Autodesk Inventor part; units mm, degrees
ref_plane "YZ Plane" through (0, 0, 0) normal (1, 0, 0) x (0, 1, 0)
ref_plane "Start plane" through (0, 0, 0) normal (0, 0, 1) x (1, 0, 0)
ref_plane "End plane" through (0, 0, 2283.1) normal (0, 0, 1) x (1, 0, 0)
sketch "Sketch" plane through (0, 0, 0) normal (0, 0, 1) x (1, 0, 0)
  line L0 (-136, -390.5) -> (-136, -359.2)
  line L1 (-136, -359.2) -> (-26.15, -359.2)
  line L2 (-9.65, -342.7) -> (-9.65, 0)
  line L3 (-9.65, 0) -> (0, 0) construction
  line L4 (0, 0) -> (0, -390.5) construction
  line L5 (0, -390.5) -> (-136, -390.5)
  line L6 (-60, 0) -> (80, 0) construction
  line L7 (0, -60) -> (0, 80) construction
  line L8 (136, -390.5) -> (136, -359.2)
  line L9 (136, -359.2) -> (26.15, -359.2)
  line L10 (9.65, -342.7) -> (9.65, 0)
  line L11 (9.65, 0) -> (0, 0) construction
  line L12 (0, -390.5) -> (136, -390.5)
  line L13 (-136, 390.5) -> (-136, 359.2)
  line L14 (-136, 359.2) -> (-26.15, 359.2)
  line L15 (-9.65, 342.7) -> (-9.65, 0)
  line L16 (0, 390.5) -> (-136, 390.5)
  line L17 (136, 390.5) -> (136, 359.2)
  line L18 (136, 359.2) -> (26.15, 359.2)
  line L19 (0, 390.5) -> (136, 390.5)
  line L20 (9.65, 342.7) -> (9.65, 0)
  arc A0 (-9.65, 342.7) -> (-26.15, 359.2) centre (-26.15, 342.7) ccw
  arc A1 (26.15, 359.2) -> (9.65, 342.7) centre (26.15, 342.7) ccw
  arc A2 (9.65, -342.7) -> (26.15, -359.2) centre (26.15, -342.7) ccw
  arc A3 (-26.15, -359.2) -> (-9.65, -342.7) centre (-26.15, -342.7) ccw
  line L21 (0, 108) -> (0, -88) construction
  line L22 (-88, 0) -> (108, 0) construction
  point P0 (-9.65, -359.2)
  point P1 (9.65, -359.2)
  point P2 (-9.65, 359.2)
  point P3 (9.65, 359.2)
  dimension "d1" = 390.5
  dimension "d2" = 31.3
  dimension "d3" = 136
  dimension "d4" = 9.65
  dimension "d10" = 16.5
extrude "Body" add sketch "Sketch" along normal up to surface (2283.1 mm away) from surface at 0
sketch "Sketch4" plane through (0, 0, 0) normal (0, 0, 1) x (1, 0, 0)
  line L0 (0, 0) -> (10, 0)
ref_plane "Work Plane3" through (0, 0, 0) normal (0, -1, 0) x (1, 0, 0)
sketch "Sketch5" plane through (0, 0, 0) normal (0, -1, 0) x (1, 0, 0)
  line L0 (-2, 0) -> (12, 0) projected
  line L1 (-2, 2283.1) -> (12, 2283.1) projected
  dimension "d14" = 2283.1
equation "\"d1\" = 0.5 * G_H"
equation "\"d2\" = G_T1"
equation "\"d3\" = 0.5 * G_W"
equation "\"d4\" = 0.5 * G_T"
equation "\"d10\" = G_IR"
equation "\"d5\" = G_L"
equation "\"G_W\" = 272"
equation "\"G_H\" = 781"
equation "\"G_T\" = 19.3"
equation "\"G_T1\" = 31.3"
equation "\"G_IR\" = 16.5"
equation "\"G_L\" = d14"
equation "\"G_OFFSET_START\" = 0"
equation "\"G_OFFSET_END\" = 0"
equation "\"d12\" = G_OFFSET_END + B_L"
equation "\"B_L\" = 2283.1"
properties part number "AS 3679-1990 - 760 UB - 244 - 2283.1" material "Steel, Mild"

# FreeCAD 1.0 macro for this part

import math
import FreeCAD as App
import Part
import Sketcher

doc = App.newDocument("Part")
body = doc.addObject("PartDesign::Body", "Body")

sketch1 = body.newObject("Sketcher::SketchObject", "Sketch")
sketch1.AttachmentSupport = (doc.getObject("XY_Plane"), [""])
sketch1.MapMode = "FlatFace"
sketch1.addGeometry([
    Part.LineSegment(App.Vector(-136, -359.2, 0), App.Vector(-136, -390.5, 0)),
    Part.LineSegment(App.Vector(-136, -390.5, 0), App.Vector(136, -390.5, 0)),
    Part.LineSegment(App.Vector(136, -390.5, 0), App.Vector(136, -359.2, 0)),
    Part.LineSegment(App.Vector(136, -359.2, 0), App.Vector(26.15, -359.2, 0)),
    Part.ArcOfCircle(Part.Circle(App.Vector(26.15, -342.7, 0), App.Vector(0, 0, 1), 16.5), math.radians(180), math.radians(270)),
    Part.LineSegment(App.Vector(9.65, -342.7, 0), App.Vector(9.65, 342.7, 0)),
    Part.ArcOfCircle(Part.Circle(App.Vector(26.15, 342.7, 0), App.Vector(0, 0, 1), 16.5), math.radians(90), math.radians(180)),
    Part.LineSegment(App.Vector(26.15, 359.2, 0), App.Vector(136, 359.2, 0)),
    Part.LineSegment(App.Vector(136, 359.2, 0), App.Vector(136, 390.5, 0)),
    Part.LineSegment(App.Vector(136, 390.5, 0), App.Vector(-136, 390.5, 0)),
    Part.LineSegment(App.Vector(-136, 390.5, 0), App.Vector(-136, 359.2, 0)),
    Part.LineSegment(App.Vector(-136, 359.2, 0), App.Vector(-26.15, 359.2, 0)),
    Part.ArcOfCircle(Part.Circle(App.Vector(-26.15, 342.7, 0), App.Vector(0, 0, 1), 16.5), math.radians(0), math.radians(90)),
    Part.LineSegment(App.Vector(-9.65, 342.7, 0), App.Vector(-9.65, -342.7, 0)),
    Part.ArcOfCircle(Part.Circle(App.Vector(-26.15, -342.7, 0), App.Vector(0, 0, 1), 16.5), math.radians(-90), math.radians(0)),
    Part.LineSegment(App.Vector(-26.15, -359.2, 0), App.Vector(-136, -359.2, 0)),
], False)
sketch1.addConstraint([
    Sketcher.Constraint("Coincident", 0, 2, 1, 1),
    Sketcher.Constraint("Coincident", 1, 2, 2, 1),
    Sketcher.Constraint("Coincident", 2, 2, 3, 1),
    Sketcher.Constraint("Tangent", 3, 2, 4, 2),
    Sketcher.Constraint("Tangent", 4, 1, 5, 1),
    Sketcher.Constraint("Tangent", 5, 2, 6, 2),
    Sketcher.Constraint("Tangent", 6, 1, 7, 1),
    Sketcher.Constraint("Coincident", 7, 2, 8, 1),
    Sketcher.Constraint("Coincident", 8, 2, 9, 1),
    Sketcher.Constraint("Coincident", 9, 2, 10, 1),
    Sketcher.Constraint("Coincident", 10, 2, 11, 1),
    Sketcher.Constraint("Tangent", 11, 2, 12, 2),
    Sketcher.Constraint("Tangent", 12, 1, 13, 1),
    Sketcher.Constraint("Tangent", 13, 2, 14, 2),
    Sketcher.Constraint("Tangent", 14, 1, 15, 1),
    Sketcher.Constraint("Coincident", 15, 2, 0, 1),
    Sketcher.Constraint("Vertical", 0),
    Sketcher.Constraint("Horizontal", 1),
    Sketcher.Constraint("Vertical", 2),
    Sketcher.Constraint("Horizontal", 3),
    Sketcher.Constraint("Vertical", 5),
    Sketcher.Constraint("Horizontal", 7),
    Sketcher.Constraint("Vertical", 8),
    Sketcher.Constraint("Horizontal", 9),
    Sketcher.Constraint("Vertical", 10),
    Sketcher.Constraint("Horizontal", 11),
    Sketcher.Constraint("Vertical", 13),
    Sketcher.Constraint("Horizontal", 15),
    Sketcher.Constraint("Equal", 4, 6),
    Sketcher.Constraint("Equal", 6, 12),
    Sketcher.Constraint("Equal", 12, 14),
    Sketcher.Constraint("Symmetric", 4, 3, 12, 3, -1, 1),
    Sketcher.Constraint("Symmetric", 0, 2, 8, 2, -1, 1),
    Sketcher.Constraint("Symmetric", 7, 2, 10, 2, -2),
    Sketcher.Constraint("Symmetric", 2, 2, 15, 2, -2),
    Sketcher.Constraint("Radius", 4, 16.5),
    Sketcher.Constraint("DistanceY", 0, 2, 0, 1, 31.3),
    Sketcher.Constraint("DistanceX", 0, 2, -1, 1, 136.0),
    Sketcher.Constraint("DistanceY", 0, 2, -1, 1, 390.5),
    Sketcher.Constraint("DistanceX", -1, 1, 4, 1, 9.65),
])
pad1 = body.newObject("PartDesign::Pad", "Pad")
pad1.Profile = sketch1
pad1.Length = 2283.1

doc.recompute()
